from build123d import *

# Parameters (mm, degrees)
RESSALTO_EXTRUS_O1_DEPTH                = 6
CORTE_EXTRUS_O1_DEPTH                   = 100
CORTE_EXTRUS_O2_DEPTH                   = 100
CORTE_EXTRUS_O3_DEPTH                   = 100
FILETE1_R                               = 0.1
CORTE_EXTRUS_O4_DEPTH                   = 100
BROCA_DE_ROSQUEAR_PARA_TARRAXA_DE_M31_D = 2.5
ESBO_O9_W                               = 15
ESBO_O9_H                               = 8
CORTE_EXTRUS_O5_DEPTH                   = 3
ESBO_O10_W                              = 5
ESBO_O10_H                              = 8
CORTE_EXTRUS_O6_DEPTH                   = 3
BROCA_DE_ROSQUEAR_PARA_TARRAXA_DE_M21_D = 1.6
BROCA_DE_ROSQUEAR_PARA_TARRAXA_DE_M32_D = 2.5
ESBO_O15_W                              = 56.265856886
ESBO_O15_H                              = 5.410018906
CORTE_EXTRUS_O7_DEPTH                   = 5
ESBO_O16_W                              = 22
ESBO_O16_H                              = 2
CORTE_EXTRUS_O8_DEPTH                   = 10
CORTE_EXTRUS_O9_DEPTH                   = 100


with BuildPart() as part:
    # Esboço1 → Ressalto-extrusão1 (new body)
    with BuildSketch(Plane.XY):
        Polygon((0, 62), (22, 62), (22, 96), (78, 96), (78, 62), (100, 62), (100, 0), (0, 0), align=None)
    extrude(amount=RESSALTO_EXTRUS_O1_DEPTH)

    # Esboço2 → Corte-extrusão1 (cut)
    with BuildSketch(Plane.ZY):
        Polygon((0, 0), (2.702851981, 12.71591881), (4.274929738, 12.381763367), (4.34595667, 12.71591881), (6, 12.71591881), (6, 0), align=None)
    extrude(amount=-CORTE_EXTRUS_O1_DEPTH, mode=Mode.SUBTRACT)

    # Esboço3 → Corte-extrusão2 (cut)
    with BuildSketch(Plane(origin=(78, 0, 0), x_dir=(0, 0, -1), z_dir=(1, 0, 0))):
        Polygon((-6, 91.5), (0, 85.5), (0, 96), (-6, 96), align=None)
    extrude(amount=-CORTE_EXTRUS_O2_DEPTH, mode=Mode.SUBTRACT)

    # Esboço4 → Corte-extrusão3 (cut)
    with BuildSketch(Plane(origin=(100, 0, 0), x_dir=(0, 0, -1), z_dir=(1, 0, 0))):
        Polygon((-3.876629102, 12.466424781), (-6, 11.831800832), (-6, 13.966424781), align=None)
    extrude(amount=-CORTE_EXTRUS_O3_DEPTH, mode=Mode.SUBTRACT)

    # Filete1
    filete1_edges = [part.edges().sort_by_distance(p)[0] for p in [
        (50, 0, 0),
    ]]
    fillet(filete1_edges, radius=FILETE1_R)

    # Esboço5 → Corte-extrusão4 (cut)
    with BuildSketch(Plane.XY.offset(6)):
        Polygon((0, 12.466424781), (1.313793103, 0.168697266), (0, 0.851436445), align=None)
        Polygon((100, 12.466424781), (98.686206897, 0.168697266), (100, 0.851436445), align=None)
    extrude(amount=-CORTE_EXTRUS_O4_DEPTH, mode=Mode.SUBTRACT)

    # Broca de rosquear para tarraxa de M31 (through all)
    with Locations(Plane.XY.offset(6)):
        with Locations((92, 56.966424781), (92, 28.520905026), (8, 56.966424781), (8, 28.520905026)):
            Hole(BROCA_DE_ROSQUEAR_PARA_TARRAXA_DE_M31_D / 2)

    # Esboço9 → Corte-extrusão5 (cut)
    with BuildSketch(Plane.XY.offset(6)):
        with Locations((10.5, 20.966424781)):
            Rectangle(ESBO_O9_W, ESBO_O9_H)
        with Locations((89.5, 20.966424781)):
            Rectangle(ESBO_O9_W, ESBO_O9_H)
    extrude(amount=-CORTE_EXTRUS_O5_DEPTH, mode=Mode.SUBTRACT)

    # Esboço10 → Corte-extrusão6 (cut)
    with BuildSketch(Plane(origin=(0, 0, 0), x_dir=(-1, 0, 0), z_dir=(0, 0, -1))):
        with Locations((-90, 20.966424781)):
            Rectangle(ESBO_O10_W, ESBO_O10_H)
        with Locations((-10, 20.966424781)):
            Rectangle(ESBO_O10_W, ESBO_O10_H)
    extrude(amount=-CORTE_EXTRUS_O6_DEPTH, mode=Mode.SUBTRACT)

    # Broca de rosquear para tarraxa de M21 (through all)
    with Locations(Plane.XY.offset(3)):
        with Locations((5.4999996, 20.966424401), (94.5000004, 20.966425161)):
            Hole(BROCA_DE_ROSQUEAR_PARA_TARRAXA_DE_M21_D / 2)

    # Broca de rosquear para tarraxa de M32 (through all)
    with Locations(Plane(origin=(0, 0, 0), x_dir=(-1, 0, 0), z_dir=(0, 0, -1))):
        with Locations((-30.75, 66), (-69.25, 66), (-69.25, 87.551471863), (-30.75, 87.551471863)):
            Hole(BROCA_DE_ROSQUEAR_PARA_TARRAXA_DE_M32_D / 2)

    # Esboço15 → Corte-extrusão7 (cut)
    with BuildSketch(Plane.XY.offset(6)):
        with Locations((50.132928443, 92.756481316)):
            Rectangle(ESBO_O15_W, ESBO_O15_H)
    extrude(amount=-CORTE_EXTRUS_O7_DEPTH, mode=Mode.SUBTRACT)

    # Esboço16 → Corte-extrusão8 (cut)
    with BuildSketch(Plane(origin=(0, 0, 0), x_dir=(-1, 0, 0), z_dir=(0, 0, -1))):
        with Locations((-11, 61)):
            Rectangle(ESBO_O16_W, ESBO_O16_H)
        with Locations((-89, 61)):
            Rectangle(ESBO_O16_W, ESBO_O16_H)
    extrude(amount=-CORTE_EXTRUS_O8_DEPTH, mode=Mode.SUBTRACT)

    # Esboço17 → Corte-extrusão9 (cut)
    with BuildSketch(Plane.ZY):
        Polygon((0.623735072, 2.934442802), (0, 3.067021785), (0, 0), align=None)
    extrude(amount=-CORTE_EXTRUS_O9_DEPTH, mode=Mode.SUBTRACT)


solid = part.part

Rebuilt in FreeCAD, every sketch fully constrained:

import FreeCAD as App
import Part
import Sketcher

V = App.Vector
Q = App.Units.Quantity


def edges_at(feature, points):
    """Names of the edges that pass closest to the given points."""
    edges = feature.Shape.Edges
    near = lambda p: min(range(len(edges)), key=lambda i: edges[i].distToShape(Part.Vertex(*p))[0])
    return sorted({f"Edge{near(p) + 1}" for p in points})

doc = App.newDocument("Part")
body = doc.addObject("PartDesign::Body", "Body")

sketch1 = body.newObject("Sketcher::SketchObject", "Sketch")
sketch1.AttachmentSupport = (doc.getObject("XY_Plane"), [""])
sketch1.MapMode = "FlatFace"
sketch1.addGeometry([
    Part.LineSegment(V(22, 62, 0), V(0, 62, 0)),
    Part.LineSegment(V(0, 62, 0), V(0, 0, 0)),
    Part.LineSegment(V(0, 0, 0), V(100, 0, 0)),
    Part.LineSegment(V(100, 0, 0), V(100, 62, 0)),
    Part.LineSegment(V(100, 62, 0), V(78, 62, 0)),
    Part.LineSegment(V(78, 62, 0), V(78, 96, 0)),
    Part.LineSegment(V(78, 96, 0), V(22, 96, 0)),
    Part.LineSegment(V(22, 96, 0), V(22, 62, 0)),
], False)
sketch1.addConstraint([
    Sketcher.Constraint("Coincident", 0, 2, 1, 1),
    Sketcher.Constraint("Coincident", 1, 2, 2, 1),
    Sketcher.Constraint("Coincident", 2, 2, 3, 1),
    Sketcher.Constraint("Coincident", 3, 2, 4, 1),
    Sketcher.Constraint("Coincident", 4, 2, 5, 1),
    Sketcher.Constraint("Coincident", 5, 2, 6, 1),
    Sketcher.Constraint("Coincident", 6, 2, 7, 1),
    Sketcher.Constraint("Coincident", 7, 2, 0, 1),
    Sketcher.Constraint("Horizontal", 0),
    Sketcher.Constraint("Vertical", 1),
    Sketcher.Constraint("Horizontal", 2),
    Sketcher.Constraint("Vertical", 3),
    Sketcher.Constraint("Horizontal", 4),
    Sketcher.Constraint("Vertical", 5),
    Sketcher.Constraint("Horizontal", 6),
    Sketcher.Constraint("Vertical", 7),
    Sketcher.Constraint("Coincident", 1, 2, -1, 1),
    Sketcher.Constraint("Horizontal", 0, 2, 3, 2),
    Sketcher.Constraint("Equal", 0, 4),
    Sketcher.Constraint("DistanceX", 0, 2, 0, 1, Q("22 mm")),
    Sketcher.Constraint("DistanceX", 2, 1, 2, 2, Q("100 mm")),
    Sketcher.Constraint("DistanceY", 1, 2, 1, 1, Q("62 mm")),
    Sketcher.Constraint("DistanceY", 5, 1, 5, 2, Q("34 mm")),
])
pad1 = body.newObject("PartDesign::Pad", "Pad")
pad1.Profile = sketch1
pad1.Length = 6

sketch2 = body.newObject("Sketcher::SketchObject", "Sketch001")
sketch2.AttachmentSupport = (doc.getObject("YZ_Plane"), [""])
sketch2.MapMode = "FlatFace"
sketch2.addGeometry([
    Part.LineSegment(V(12.72, 2.7, 0), V(0, 0, 0)),
    Part.LineSegment(V(0, 0, 0), V(0, 6, 0)),
    Part.LineSegment(V(0, 6, 0), V(12.72, 6, 0)),
    Part.LineSegment(V(12.72, 6, 0), V(12.72, 4.35, 0)),
    Part.LineSegment(V(12.72, 4.35, 0), V(12.38, 4.27, 0)),
    Part.LineSegment(V(12.38, 4.27, 0), V(12.72, 2.7, 0)),
], False)
sketch2.addConstraint([
    Sketcher.Constraint("Coincident", 0, 2, 1, 1),
    Sketcher.Constraint("Coincident", 1, 2, 2, 1),
    Sketcher.Constraint("Coincident", 2, 2, 3, 1),
    Sketcher.Constraint("Coincident", 3, 2, 4, 1),
    Sketcher.Constraint("Coincident", 4, 2, 5, 1),
    Sketcher.Constraint("Coincident", 5, 2, 0, 1),
    Sketcher.Constraint("Vertical", 1),
    Sketcher.Constraint("Horizontal", 2),
    Sketcher.Constraint("Vertical", 3),
    Sketcher.Constraint("Coincident", 0, 2, -1, 1),
    Sketcher.Constraint("Parallel", 0, 4),
    Sketcher.Constraint("Perpendicular", 4, 5),
    Sketcher.Constraint("Vertical", 3, 2, 5, 2),
    Sketcher.Constraint("DistanceY", 1, 1, 1, 2, Q("6 mm")),
    Sketcher.Constraint("Angle", 0, Q("-168 deg")),
    Sketcher.Constraint("Distance", 0, Q("13 mm")),
    Sketcher.Constraint("Distance", 5, Q("1.607199 mm")),
])
pocket1 = body.newObject("PartDesign::Pocket", "Pocket")
pocket1.Profile = sketch2
pocket1.Length = 100
pocket1.Reversed = True

sketch3 = body.newObject("Sketcher::SketchObject", "Sketch002")
sketch3.AttachmentSupport = (doc.getObject("YZ_Plane"), [""])
sketch3.MapMode = "FlatFace"
sketch3.AttachmentOffset = App.Placement(V(0, 0, 78), App.Rotation())
sketch3.addGeometry([
    Part.LineSegment(V(91.5, 6, 0), V(85.5, 0, 0)),
    Part.LineSegment(V(85.5, 0, 0), V(96, 0, 0)),
    Part.LineSegment(V(96, 0, 0), V(96, 6, 0)),
    Part.LineSegment(V(96, 6, 0), V(91.5, 6, 0)),
], False)
sketch3.addConstraint([
    Sketcher.Constraint("Coincident", 0, 2, 1, 1),
    Sketcher.Constraint("Coincident", 1, 2, 2, 1),
    Sketcher.Constraint("Coincident", 2, 2, 3, 1),
    Sketcher.Constraint("Coincident", 3, 2, 0, 1),
    Sketcher.Constraint("Horizontal", 1),
    Sketcher.Constraint("Vertical", 2),
    Sketcher.Constraint("Horizontal", 3),
    Sketcher.Constraint("PointOnObject", 0, 2, -1),
    Sketcher.Constraint("DistanceY", 2, 1, 2, 2, Q("6 mm")),
    Sketcher.Constraint("Angle", 0, Q("-135 deg")),
    Sketcher.Constraint("DistanceX", 1, 1, 1, 2, Q("10.5 mm")),
    Sketcher.Constraint("DistanceX", -1, 1, 1, 2, Q("96 mm")),
])
pocket2 = body.newObject("PartDesign::Pocket", "Pocket001")
pocket2.Profile = sketch3
pocket2.Length = 100

sketch4 = body.newObject("Sketcher::SketchObject", "Sketch003")
sketch4.AttachmentSupport = (doc.getObject("YZ_Plane"), [""])
sketch4.MapMode = "FlatFace"
sketch4.AttachmentOffset = App.Placement(V(0, 0, 100), App.Rotation())
sketch4.addGeometry([
    Part.LineSegment(V(11.8, 6, 0), V(12.5, 3.9, 0)),
    Part.LineSegment(V(12.5, 3.9, 0), V(14, 6, 0)),
    Part.LineSegment(V(14, 6, 0), V(11.8, 6, 0)),
], False)
sketch4.addConstraint([
    Sketcher.Constraint("Coincident", 0, 2, 1, 1),
    Sketcher.Constraint("Coincident", 1, 2, 2, 1),
    Sketcher.Constraint("Coincident", 2, 2, 0, 1),
    Sketcher.Constraint("Horizontal", 2),
    Sketcher.Constraint("DistanceY", -1, 1, 1, 2, Q("6 mm")),
    Sketcher.Constraint("DistanceX", 0, 2, 1, 2, Q("1.5 mm")),
    Sketcher.Constraint("DistanceX", -1, 1, 2, 2, Q("11.831801 mm")),
    Sketcher.Constraint("Distance", 0, Q("2.216179 mm")),
    Sketcher.Constraint("Distance", 1, Q("2.599751 mm")),
])
pocket3 = body.newObject("PartDesign::Pocket", "Pocket002")
pocket3.Profile = sketch4
pocket3.Length = 100
doc.recompute()

fillet = body.newObject("PartDesign::Fillet", "Fillet")
fillet.Base = (pocket3, edges_at(pocket3, [(50, 0, 0)]))
fillet.Radius = 0.1

sketch5 = body.newObject("Sketcher::SketchObject", "Sketch004")
sketch5.AttachmentSupport = (doc.getObject("XY_Plane"), [""])
sketch5.MapMode = "FlatFace"
sketch5.AttachmentOffset = App.Placement(V(0, 0, 6), App.Rotation())
sketch5.addGeometry([
    Part.LineSegment(V(1.3, 0.2, 0), V(0, 12.5, 0)),
    Part.LineSegment(V(0, 12.5, 0), V(0, 0.9, 0)),
    Part.LineSegment(V(0, 0.9, 0), V(1.3, 0.2, 0)),
    Part.LineSegment(V(100, 12.5, 0), V(98.7, 0.2, 0)),
    Part.LineSegment(V(98.7, 0.2, 0), V(100, 0.9, 0)),
    Part.LineSegment(V(100, 0.9, 0), V(100, 12.5, 0)),
], False)
sketch5.addConstraint([
    Sketcher.Constraint("Coincident", 0, 2, 1, 1),
    Sketcher.Constraint("Coincident", 1, 2, 2, 1),
    Sketcher.Constraint("Coincident", 2, 2, 0, 1),
    Sketcher.Constraint("Coincident", 3, 2, 4, 1),
    Sketcher.Constraint("Coincident", 4, 2, 5, 1),
    Sketcher.Constraint("Coincident", 5, 2, 3, 1),
    Sketcher.Constraint("Vertical", 1),
    Sketcher.Constraint("Vertical", 5),
    Sketcher.Constraint("PointOnObject", 0, 2, -2),
    Sketcher.Constraint("Horizontal", 2, 2, 3, 2),
    Sketcher.Constraint("Horizontal", 1, 2, 4, 2),
    Sketcher.Constraint("Horizontal", 0, 2, 5, 2),
    Sketcher.Constraint("Equal", 0, 3),
    Sketcher.Constraint("DistanceX", -1, 1, 4, 2, Q("100 mm")),
    Sketcher.Constraint("DistanceY", 1, 2, 1, 1, Q("11.614988 mm")),
    Sketcher.Constraint("DistanceY", 2, 2, 1, 2, Q("0.682739 mm")),
    Sketcher.Constraint("Distance", 0, Q("12.367706 mm")),
    Sketcher.Constraint("DistanceY", -1, 1, 0, 2, Q("12.466425 mm")),
])
pocket4 = body.newObject("PartDesign::Pocket", "Pocket003")
pocket4.Profile = sketch5
pocket4.Length = 100

sketch6 = body.newObject("Sketcher::SketchObject", "Sketch005")
sketch6.AttachmentSupport = (doc.getObject("XY_Plane"), [""])
sketch6.MapMode = "FlatFace"
sketch6.AttachmentOffset = App.Placement(V(0, 0, 6), App.Rotation())
sketch6.addGeometry([
    Part.Circle(V(92, 57, 0), V(0, 0, 1), 1.2),
    Part.Circle(V(92, 28.5, 0), V(0, 0, 1), 1.2),
    Part.Circle(V(8, 57, 0), V(0, 0, 1), 1.2),
    Part.Circle(V(8, 28.5, 0), V(0, 0, 1), 1.2),
], False)
sketch6.addConstraint([
    Sketcher.Constraint("Equal", 0, 1),
    Sketcher.Constraint("Equal", 1, 2),
    Sketcher.Constraint("Equal", 2, 3),
    Sketcher.Constraint("Horizontal", 0, 3, 2, 3),
    Sketcher.Constraint("Horizontal", 1, 3, 3, 3),
    Sketcher.Constraint("Vertical", 0, 3, 1, 3),
    Sketcher.Constraint("Vertical", 2, 3, 3, 3),
    Sketcher.Constraint("Diameter", 0, Q("2.5 mm")),
    Sketcher.Constraint("DistanceX", -1, 1, 0, 3, Q("92 mm")),
    Sketcher.Constraint("DistanceX", -1, 1, 2, 3, Q("8 mm")),
    Sketcher.Constraint("DistanceY", 1, 3, 0, 3, Q("28.44552 mm")),
    Sketcher.Constraint("DistanceY", -1, 1, 0, 3, Q("56.966425 mm")),
])
doc.recompute()
hole = body.newObject("PartDesign::Hole", "Hole")
hole.Profile = sketch6
hole.ThreadType = "None"
hole.Diameter = 2.5
hole.DepthType = "ThroughAll"

sketch7 = body.newObject("Sketcher::SketchObject", "Sketch006")
sketch7.AttachmentSupport = (doc.getObject("XY_Plane"), [""])
sketch7.MapMode = "FlatFace"
sketch7.AttachmentOffset = App.Placement(V(0, 0, 6), App.Rotation())
sketch7.addGeometry([
    Part.LineSegment(V(3, 25, 0), V(3, 17, 0)),
    Part.LineSegment(V(3, 17, 0), V(18, 17, 0)),
    Part.LineSegment(V(18, 17, 0), V(18, 25, 0)),
    Part.LineSegment(V(18, 25, 0), V(3, 25, 0)),
    Part.LineSegment(V(82, 25, 0), V(82, 17, 0)),
    Part.LineSegment(V(82, 17, 0), V(97, 17, 0)),
    Part.LineSegment(V(97, 17, 0), V(97, 25, 0)),
    Part.LineSegment(V(97, 25, 0), V(82, 25, 0)),
], False)
sketch7.addConstraint([
    Sketcher.Constraint("Coincident", 0, 2, 1, 1),
    Sketcher.Constraint("Coincident", 1, 2, 2, 1),
    Sketcher.Constraint("Coincident", 2, 2, 3, 1),
    Sketcher.Constraint("Coincident", 3, 2, 0, 1),
    Sketcher.Constraint("Coincident", 4, 2, 5, 1),
    Sketcher.Constraint("Coincident", 5, 2, 6, 1),
    Sketcher.Constraint("Coincident", 6, 2, 7, 1),
    Sketcher.Constraint("Coincident", 7, 2, 4, 1),
    Sketcher.Constraint("Vertical", 0),
    Sketcher.Constraint("Horizontal", 1),
    Sketcher.Constraint("Vertical", 2),
    Sketcher.Constraint("Horizontal", 3),
    Sketcher.Constraint("Vertical", 4),
    Sketcher.Constraint("Horizontal", 5),
    Sketcher.Constraint("Vertical", 6),
    Sketcher.Constraint("Horizontal", 7),
    Sketcher.Constraint("Horizontal", 1, 2, 4, 2),
    Sketcher.Constraint("Horizontal", 3, 2, 6, 2),
    Sketcher.Constraint("Equal", 3, 5),
    Sketcher.Constraint("DistanceX", 1, 1, 1, 2, Q("15 mm")),
    Sketcher.Constraint("DistanceY", 0, 2, 0, 1, Q("8 mm")),
    Sketcher.Constraint("DistanceX", -1, 1, 0, 2, Q("3 mm")),
    Sketcher.Constraint("DistanceX", -1, 1, 4, 2, Q("82 mm")),
    Sketcher.Constraint("DistanceY", -1, 1, 0, 2, Q("16.966425 mm")),
])
pocket5 = body.newObject("PartDesign::Pocket", "Pocket004")
pocket5.Profile = sketch7
pocket5.Length = 3

sketch8 = body.newObject("Sketcher::SketchObject", "Sketch007")
sketch8.AttachmentSupport = (doc.getObject("XY_Plane"), [""])
sketch8.MapMode = "FlatFace"
sketch8.addGeometry([
    Part.LineSegment(V(92, 25, 0), V(92, 17, 0)),
    Part.LineSegment(V(92, 17, 0), V(88, 17, 0)),
    Part.LineSegment(V(88, 17, 0), V(88, 25, 0)),
    Part.LineSegment(V(88, 25, 0), V(92, 25, 0)),
    Part.LineSegment(V(12, 25, 0), V(12, 17, 0)),
    Part.LineSegment(V(12, 17, 0), V(8, 17, 0)),
    Part.LineSegment(V(8, 17, 0), V(8, 25, 0)),
    Part.LineSegment(V(8, 25, 0), V(12, 25, 0)),
], False)
sketch8.addConstraint([
    Sketcher.Constraint("Coincident", 0, 2, 1, 1),
    Sketcher.Constraint("Coincident", 1, 2, 2, 1),
    Sketcher.Constraint("Coincident", 2, 2, 3, 1),
    Sketcher.Constraint("Coincident", 3, 2, 0, 1),
    Sketcher.Constraint("Coincident", 4, 2, 5, 1),
    Sketcher.Constraint("Coincident", 5, 2, 6, 1),
    Sketcher.Constraint("Coincident", 6, 2, 7, 1),
    Sketcher.Constraint("Coincident", 7, 2, 4, 1),
    Sketcher.Constraint("Vertical", 0),
    Sketcher.Constraint("Horizontal", 1),
    Sketcher.Constraint("Vertical", 2),
    Sketcher.Constraint("Horizontal", 3),
    Sketcher.Constraint("Vertical", 4),
    Sketcher.Constraint("Horizontal", 5),
    Sketcher.Constraint("Vertical", 6),
    Sketcher.Constraint("Horizontal", 7),
    Sketcher.Constraint("Horizontal", 1, 2, 4, 2),
    Sketcher.Constraint("Horizontal", 3, 2, 6, 2),
    Sketcher.Constraint("Equal", 3, 5),
    Sketcher.Constraint("DistanceX", 1, 2, 1, 1, Q("5 mm")),
    Sketcher.Constraint("DistanceY", 0, 2, 0, 1, Q("8 mm")),
    Sketcher.Constraint("DistanceX", 4, 2, 1, 2, Q("75 mm")),
    Sketcher.Constraint("DistanceX", -1, 1, 0, 2, Q("92.5 mm")),
    Sketcher.Constraint("DistanceY", -1, 1, 0, 2, Q("16.966425 mm")),
])
pocket6 = body.newObject("PartDesign::Pocket", "Pocket005")
pocket6.Profile = sketch8
pocket6.Length = 3
pocket6.Reversed = True

sketch9 = body.newObject("Sketcher::SketchObject", "Sketch008")
sketch9.AttachmentSupport = (doc.getObject("XY_Plane"), [""])
sketch9.MapMode = "FlatFace"
sketch9.AttachmentOffset = App.Placement(V(0, 0, 3), App.Rotation())
sketch9.addGeometry([
    Part.Circle(V(5.5, 21, 0), V(0, 0, 1), 0.8),
    Part.Circle(V(94.5, 21, 0), V(0, 0, 1), 0.8),
], False)
sketch9.addConstraint([
    Sketcher.Constraint("Equal", 0, 1),
    Sketcher.Constraint("Horizontal", 0, 3, 1, 3),
    Sketcher.Constraint("Diameter", 0, Q("1.6 mm")),
    Sketcher.Constraint("DistanceX", 0, 3, 1, 3, Q("89.000001 mm")),
    Sketcher.Constraint("DistanceX", -1, 1, 0, 3, Q("5.5 mm")),
    Sketcher.Constraint("DistanceY", -1, 1, 0, 3, Q("20.966424 mm")),
])
doc.recompute()
hole2 = body.newObject("PartDesign::Hole", "Hole001")
hole2.Profile = sketch9
hole2.ThreadType = "None"
hole2.Diameter = 1.6
hole2.DepthType = "ThroughAll"

sketch10 = body.newObject("Sketcher::SketchObject", "Sketch009")
sketch10.AttachmentSupport = (doc.getObject("XY_Plane"), [""])
sketch10.MapMode = "FlatFace"
sketch10.addGeometry([
    Part.Circle(V(30.8, 66, 0), V(0, 0, 1), 1.2),
    Part.Circle(V(69.2, 66, 0), V(0, 0, 1), 1.2),
    Part.Circle(V(69.2, 87.6, 0), V(0, 0, 1), 1.2),
    Part.Circle(V(30.8, 87.6, 0), V(0, 0, 1), 1.2),
], False)
sketch10.addConstraint([
    Sketcher.Constraint("Equal", 0, 1),
    Sketcher.Constraint("Equal", 1, 2),
    Sketcher.Constraint("Equal", 2, 3),
    Sketcher.Constraint("Horizontal", 0, 3, 1, 3),
    Sketcher.Constraint("Horizontal", 2, 3, 3, 3),
    Sketcher.Constraint("Vertical", 1, 3, 2, 3),
    Sketcher.Constraint("Vertical", 0, 3, 3, 3),
    Sketcher.Constraint("Diameter", 0, Q("2.5 mm")),
    Sketcher.Constraint("DistanceY", -1, 1, 0, 3, Q("66 mm")),
    Sketcher.Constraint("DistanceX", 0, 3, 1, 3, Q("38.5 mm")),
    Sketcher.Constraint("DistanceX", -1, 1, 0, 3, Q("30.75 mm")),
    Sketcher.Constraint("DistanceY", -1, 1, 2, 3, Q("87.551472 mm")),
])
doc.recompute()
hole3 = body.newObject("PartDesign::Hole", "Hole002")
hole3.Profile = sketch10
hole3.ThreadType = "None"
hole3.Diameter = 2.5
hole3.DepthType = "ThroughAll"
hole3.Reversed = True

sketch11 = body.newObject("Sketcher::SketchObject", "Sketch010")
sketch11.AttachmentSupport = (doc.getObject("XY_Plane"), [""])
sketch11.MapMode = "FlatFace"
sketch11.AttachmentOffset = App.Placement(V(0, 0, 6), App.Rotation())
sketch11.addGeometry([
    Part.LineSegment(V(22, 95, 0), V(22, 90, 0)),
    Part.LineSegment(V(22, 90, 0), V(78, 90, 0)),
    Part.LineSegment(V(78, 90, 0), V(78, 95, 0)),
    Part.LineSegment(V(78, 95, 0), V(22, 95, 0)),
], False)
sketch11.addConstraint([
    Sketcher.Constraint("Coincident", 0, 2, 1, 1),
    Sketcher.Constraint("Coincident", 1, 2, 2, 1),
    Sketcher.Constraint("Coincident", 2, 2, 3, 1),
    Sketcher.Constraint("Coincident", 3, 2, 0, 1),
    Sketcher.Constraint("Vertical", 0),
    Sketcher.Constraint("Horizontal", 1),
    Sketcher.Constraint("Vertical", 2),
    Sketcher.Constraint("Horizontal", 3),
    Sketcher.Constraint("DistanceX", -1, 1, 0, 2, Q("22 mm")),
    Sketcher.Constraint("DistanceY", 0, 2, 0, 1, Q("5.410019 mm")),
    Sketcher.Constraint("DistanceX", 1, 1, 1, 2, Q("56.265857 mm")),
    Sketcher.Constraint("DistanceY", -1, 1, 0, 2, Q("90.051472 mm")),
])
pocket7 = body.newObject("PartDesign::Pocket", "Pocket006")
pocket7.Profile = sketch11
pocket7.Length = 5

sketch12 = body.newObject("Sketcher::SketchObject", "Sketch011")
sketch12.AttachmentSupport = (doc.getObject("XY_Plane"), [""])
sketch12.MapMode = "FlatFace"
sketch12.addGeometry([
    Part.LineSegment(V(22, 62, 0), V(22, 60, 0)),
    Part.LineSegment(V(22, 60, 0), V(0, 60, 0)),
    Part.LineSegment(V(0, 60, 0), V(0, 62, 0)),
    Part.LineSegment(V(0, 62, 0), V(22, 62, 0)),
    Part.LineSegment(V(100, 62, 0), V(100, 60, 0)),
    Part.LineSegment(V(100, 60, 0), V(78, 60, 0)),
    Part.LineSegment(V(78, 60, 0), V(78, 62, 0)),
    Part.LineSegment(V(78, 62, 0), V(100, 62, 0)),
], False)
sketch12.addConstraint([
    Sketcher.Constraint("Coincident", 0, 2, 1, 1),
    Sketcher.Constraint("Coincident", 1, 2, 2, 1),
    Sketcher.Constraint("Coincident", 2, 2, 3, 1),
    Sketcher.Constraint("Coincident", 3, 2, 0, 1),
    Sketcher.Constraint("Coincident", 4, 2, 5, 1),
    Sketcher.Constraint("Coincident", 5, 2, 6, 1),
    Sketcher.Constraint("Coincident", 6, 2, 7, 1),
    Sketcher.Constraint("Coincident", 7, 2, 4, 1),
    Sketcher.Constraint("Vertical", 0),
    Sketcher.Constraint("Horizontal", 1),
    Sketcher.Constraint("Vertical", 2),
    Sketcher.Constraint("Horizontal", 3),
    Sketcher.Constraint("Vertical", 4),
    Sketcher.Constraint("Horizontal", 5),
    Sketcher.Constraint("Vertical", 6),
    Sketcher.Constraint("Horizontal", 7),
    Sketcher.Constraint("PointOnObject", 1, 2, -2),
    Sketcher.Constraint("Horizontal", 1, 2, 4, 2),
    Sketcher.Constraint("Horizontal", 3, 2, 6, 2),
    Sketcher.Constraint("Equal", 3, 5),
    Sketcher.Constraint("DistanceX", 1, 2, 1, 1, Q("22 mm")),
    Sketcher.Constraint("DistanceY", 0, 2, 0, 1, Q("2 mm")),
    Sketcher.Constraint("DistanceY", -1, 1, 0, 2, Q("60 mm")),
    Sketcher.Constraint("DistanceX", -1, 1, 4, 2, Q("100 mm")),
])
pocket8 = body.newObject("PartDesign::Pocket", "Pocket007")
pocket8.Profile = sketch12
pocket8.Length = 10
pocket8.Reversed = True

sketch13 = body.newObject("Sketcher::SketchObject", "Sketch012")
sketch13.AttachmentSupport = (doc.getObject("YZ_Plane"), [""])
sketch13.MapMode = "FlatFace"
sketch13.addGeometry([
    Part.LineSegment(V(2.9, 0.6, 0), V(3.1, 0, 0)),
    Part.LineSegment(V(3.1, 0, 0), V(0, 0, 0)),
    Part.LineSegment(V(0, 0, 0), V(2.9, 0.6, 0)),
], False)
sketch13.addConstraint([
    Sketcher.Constraint("Coincident", 0, 2, 1, 1),
    Sketcher.Constraint("Coincident", 1, 2, 2, 1),
    Sketcher.Constraint("Coincident", 2, 2, 0, 1),
    Sketcher.Constraint("Horizontal", 1),
    Sketcher.Constraint("Coincident", 1, 2, -1, 1),
    Sketcher.Constraint("Perpendicular", 0, 2),
    Sketcher.Constraint("Angle", 0, Q("-78 deg")),
    Sketcher.Constraint("Distance", 2, Q("3 mm")),
])
pocket9 = body.newObject("PartDesign::Pocket", "Pocket008")
pocket9.Profile = sketch13
pocket9.Length = 100
pocket9.Reversed = True

doc.recompute()
